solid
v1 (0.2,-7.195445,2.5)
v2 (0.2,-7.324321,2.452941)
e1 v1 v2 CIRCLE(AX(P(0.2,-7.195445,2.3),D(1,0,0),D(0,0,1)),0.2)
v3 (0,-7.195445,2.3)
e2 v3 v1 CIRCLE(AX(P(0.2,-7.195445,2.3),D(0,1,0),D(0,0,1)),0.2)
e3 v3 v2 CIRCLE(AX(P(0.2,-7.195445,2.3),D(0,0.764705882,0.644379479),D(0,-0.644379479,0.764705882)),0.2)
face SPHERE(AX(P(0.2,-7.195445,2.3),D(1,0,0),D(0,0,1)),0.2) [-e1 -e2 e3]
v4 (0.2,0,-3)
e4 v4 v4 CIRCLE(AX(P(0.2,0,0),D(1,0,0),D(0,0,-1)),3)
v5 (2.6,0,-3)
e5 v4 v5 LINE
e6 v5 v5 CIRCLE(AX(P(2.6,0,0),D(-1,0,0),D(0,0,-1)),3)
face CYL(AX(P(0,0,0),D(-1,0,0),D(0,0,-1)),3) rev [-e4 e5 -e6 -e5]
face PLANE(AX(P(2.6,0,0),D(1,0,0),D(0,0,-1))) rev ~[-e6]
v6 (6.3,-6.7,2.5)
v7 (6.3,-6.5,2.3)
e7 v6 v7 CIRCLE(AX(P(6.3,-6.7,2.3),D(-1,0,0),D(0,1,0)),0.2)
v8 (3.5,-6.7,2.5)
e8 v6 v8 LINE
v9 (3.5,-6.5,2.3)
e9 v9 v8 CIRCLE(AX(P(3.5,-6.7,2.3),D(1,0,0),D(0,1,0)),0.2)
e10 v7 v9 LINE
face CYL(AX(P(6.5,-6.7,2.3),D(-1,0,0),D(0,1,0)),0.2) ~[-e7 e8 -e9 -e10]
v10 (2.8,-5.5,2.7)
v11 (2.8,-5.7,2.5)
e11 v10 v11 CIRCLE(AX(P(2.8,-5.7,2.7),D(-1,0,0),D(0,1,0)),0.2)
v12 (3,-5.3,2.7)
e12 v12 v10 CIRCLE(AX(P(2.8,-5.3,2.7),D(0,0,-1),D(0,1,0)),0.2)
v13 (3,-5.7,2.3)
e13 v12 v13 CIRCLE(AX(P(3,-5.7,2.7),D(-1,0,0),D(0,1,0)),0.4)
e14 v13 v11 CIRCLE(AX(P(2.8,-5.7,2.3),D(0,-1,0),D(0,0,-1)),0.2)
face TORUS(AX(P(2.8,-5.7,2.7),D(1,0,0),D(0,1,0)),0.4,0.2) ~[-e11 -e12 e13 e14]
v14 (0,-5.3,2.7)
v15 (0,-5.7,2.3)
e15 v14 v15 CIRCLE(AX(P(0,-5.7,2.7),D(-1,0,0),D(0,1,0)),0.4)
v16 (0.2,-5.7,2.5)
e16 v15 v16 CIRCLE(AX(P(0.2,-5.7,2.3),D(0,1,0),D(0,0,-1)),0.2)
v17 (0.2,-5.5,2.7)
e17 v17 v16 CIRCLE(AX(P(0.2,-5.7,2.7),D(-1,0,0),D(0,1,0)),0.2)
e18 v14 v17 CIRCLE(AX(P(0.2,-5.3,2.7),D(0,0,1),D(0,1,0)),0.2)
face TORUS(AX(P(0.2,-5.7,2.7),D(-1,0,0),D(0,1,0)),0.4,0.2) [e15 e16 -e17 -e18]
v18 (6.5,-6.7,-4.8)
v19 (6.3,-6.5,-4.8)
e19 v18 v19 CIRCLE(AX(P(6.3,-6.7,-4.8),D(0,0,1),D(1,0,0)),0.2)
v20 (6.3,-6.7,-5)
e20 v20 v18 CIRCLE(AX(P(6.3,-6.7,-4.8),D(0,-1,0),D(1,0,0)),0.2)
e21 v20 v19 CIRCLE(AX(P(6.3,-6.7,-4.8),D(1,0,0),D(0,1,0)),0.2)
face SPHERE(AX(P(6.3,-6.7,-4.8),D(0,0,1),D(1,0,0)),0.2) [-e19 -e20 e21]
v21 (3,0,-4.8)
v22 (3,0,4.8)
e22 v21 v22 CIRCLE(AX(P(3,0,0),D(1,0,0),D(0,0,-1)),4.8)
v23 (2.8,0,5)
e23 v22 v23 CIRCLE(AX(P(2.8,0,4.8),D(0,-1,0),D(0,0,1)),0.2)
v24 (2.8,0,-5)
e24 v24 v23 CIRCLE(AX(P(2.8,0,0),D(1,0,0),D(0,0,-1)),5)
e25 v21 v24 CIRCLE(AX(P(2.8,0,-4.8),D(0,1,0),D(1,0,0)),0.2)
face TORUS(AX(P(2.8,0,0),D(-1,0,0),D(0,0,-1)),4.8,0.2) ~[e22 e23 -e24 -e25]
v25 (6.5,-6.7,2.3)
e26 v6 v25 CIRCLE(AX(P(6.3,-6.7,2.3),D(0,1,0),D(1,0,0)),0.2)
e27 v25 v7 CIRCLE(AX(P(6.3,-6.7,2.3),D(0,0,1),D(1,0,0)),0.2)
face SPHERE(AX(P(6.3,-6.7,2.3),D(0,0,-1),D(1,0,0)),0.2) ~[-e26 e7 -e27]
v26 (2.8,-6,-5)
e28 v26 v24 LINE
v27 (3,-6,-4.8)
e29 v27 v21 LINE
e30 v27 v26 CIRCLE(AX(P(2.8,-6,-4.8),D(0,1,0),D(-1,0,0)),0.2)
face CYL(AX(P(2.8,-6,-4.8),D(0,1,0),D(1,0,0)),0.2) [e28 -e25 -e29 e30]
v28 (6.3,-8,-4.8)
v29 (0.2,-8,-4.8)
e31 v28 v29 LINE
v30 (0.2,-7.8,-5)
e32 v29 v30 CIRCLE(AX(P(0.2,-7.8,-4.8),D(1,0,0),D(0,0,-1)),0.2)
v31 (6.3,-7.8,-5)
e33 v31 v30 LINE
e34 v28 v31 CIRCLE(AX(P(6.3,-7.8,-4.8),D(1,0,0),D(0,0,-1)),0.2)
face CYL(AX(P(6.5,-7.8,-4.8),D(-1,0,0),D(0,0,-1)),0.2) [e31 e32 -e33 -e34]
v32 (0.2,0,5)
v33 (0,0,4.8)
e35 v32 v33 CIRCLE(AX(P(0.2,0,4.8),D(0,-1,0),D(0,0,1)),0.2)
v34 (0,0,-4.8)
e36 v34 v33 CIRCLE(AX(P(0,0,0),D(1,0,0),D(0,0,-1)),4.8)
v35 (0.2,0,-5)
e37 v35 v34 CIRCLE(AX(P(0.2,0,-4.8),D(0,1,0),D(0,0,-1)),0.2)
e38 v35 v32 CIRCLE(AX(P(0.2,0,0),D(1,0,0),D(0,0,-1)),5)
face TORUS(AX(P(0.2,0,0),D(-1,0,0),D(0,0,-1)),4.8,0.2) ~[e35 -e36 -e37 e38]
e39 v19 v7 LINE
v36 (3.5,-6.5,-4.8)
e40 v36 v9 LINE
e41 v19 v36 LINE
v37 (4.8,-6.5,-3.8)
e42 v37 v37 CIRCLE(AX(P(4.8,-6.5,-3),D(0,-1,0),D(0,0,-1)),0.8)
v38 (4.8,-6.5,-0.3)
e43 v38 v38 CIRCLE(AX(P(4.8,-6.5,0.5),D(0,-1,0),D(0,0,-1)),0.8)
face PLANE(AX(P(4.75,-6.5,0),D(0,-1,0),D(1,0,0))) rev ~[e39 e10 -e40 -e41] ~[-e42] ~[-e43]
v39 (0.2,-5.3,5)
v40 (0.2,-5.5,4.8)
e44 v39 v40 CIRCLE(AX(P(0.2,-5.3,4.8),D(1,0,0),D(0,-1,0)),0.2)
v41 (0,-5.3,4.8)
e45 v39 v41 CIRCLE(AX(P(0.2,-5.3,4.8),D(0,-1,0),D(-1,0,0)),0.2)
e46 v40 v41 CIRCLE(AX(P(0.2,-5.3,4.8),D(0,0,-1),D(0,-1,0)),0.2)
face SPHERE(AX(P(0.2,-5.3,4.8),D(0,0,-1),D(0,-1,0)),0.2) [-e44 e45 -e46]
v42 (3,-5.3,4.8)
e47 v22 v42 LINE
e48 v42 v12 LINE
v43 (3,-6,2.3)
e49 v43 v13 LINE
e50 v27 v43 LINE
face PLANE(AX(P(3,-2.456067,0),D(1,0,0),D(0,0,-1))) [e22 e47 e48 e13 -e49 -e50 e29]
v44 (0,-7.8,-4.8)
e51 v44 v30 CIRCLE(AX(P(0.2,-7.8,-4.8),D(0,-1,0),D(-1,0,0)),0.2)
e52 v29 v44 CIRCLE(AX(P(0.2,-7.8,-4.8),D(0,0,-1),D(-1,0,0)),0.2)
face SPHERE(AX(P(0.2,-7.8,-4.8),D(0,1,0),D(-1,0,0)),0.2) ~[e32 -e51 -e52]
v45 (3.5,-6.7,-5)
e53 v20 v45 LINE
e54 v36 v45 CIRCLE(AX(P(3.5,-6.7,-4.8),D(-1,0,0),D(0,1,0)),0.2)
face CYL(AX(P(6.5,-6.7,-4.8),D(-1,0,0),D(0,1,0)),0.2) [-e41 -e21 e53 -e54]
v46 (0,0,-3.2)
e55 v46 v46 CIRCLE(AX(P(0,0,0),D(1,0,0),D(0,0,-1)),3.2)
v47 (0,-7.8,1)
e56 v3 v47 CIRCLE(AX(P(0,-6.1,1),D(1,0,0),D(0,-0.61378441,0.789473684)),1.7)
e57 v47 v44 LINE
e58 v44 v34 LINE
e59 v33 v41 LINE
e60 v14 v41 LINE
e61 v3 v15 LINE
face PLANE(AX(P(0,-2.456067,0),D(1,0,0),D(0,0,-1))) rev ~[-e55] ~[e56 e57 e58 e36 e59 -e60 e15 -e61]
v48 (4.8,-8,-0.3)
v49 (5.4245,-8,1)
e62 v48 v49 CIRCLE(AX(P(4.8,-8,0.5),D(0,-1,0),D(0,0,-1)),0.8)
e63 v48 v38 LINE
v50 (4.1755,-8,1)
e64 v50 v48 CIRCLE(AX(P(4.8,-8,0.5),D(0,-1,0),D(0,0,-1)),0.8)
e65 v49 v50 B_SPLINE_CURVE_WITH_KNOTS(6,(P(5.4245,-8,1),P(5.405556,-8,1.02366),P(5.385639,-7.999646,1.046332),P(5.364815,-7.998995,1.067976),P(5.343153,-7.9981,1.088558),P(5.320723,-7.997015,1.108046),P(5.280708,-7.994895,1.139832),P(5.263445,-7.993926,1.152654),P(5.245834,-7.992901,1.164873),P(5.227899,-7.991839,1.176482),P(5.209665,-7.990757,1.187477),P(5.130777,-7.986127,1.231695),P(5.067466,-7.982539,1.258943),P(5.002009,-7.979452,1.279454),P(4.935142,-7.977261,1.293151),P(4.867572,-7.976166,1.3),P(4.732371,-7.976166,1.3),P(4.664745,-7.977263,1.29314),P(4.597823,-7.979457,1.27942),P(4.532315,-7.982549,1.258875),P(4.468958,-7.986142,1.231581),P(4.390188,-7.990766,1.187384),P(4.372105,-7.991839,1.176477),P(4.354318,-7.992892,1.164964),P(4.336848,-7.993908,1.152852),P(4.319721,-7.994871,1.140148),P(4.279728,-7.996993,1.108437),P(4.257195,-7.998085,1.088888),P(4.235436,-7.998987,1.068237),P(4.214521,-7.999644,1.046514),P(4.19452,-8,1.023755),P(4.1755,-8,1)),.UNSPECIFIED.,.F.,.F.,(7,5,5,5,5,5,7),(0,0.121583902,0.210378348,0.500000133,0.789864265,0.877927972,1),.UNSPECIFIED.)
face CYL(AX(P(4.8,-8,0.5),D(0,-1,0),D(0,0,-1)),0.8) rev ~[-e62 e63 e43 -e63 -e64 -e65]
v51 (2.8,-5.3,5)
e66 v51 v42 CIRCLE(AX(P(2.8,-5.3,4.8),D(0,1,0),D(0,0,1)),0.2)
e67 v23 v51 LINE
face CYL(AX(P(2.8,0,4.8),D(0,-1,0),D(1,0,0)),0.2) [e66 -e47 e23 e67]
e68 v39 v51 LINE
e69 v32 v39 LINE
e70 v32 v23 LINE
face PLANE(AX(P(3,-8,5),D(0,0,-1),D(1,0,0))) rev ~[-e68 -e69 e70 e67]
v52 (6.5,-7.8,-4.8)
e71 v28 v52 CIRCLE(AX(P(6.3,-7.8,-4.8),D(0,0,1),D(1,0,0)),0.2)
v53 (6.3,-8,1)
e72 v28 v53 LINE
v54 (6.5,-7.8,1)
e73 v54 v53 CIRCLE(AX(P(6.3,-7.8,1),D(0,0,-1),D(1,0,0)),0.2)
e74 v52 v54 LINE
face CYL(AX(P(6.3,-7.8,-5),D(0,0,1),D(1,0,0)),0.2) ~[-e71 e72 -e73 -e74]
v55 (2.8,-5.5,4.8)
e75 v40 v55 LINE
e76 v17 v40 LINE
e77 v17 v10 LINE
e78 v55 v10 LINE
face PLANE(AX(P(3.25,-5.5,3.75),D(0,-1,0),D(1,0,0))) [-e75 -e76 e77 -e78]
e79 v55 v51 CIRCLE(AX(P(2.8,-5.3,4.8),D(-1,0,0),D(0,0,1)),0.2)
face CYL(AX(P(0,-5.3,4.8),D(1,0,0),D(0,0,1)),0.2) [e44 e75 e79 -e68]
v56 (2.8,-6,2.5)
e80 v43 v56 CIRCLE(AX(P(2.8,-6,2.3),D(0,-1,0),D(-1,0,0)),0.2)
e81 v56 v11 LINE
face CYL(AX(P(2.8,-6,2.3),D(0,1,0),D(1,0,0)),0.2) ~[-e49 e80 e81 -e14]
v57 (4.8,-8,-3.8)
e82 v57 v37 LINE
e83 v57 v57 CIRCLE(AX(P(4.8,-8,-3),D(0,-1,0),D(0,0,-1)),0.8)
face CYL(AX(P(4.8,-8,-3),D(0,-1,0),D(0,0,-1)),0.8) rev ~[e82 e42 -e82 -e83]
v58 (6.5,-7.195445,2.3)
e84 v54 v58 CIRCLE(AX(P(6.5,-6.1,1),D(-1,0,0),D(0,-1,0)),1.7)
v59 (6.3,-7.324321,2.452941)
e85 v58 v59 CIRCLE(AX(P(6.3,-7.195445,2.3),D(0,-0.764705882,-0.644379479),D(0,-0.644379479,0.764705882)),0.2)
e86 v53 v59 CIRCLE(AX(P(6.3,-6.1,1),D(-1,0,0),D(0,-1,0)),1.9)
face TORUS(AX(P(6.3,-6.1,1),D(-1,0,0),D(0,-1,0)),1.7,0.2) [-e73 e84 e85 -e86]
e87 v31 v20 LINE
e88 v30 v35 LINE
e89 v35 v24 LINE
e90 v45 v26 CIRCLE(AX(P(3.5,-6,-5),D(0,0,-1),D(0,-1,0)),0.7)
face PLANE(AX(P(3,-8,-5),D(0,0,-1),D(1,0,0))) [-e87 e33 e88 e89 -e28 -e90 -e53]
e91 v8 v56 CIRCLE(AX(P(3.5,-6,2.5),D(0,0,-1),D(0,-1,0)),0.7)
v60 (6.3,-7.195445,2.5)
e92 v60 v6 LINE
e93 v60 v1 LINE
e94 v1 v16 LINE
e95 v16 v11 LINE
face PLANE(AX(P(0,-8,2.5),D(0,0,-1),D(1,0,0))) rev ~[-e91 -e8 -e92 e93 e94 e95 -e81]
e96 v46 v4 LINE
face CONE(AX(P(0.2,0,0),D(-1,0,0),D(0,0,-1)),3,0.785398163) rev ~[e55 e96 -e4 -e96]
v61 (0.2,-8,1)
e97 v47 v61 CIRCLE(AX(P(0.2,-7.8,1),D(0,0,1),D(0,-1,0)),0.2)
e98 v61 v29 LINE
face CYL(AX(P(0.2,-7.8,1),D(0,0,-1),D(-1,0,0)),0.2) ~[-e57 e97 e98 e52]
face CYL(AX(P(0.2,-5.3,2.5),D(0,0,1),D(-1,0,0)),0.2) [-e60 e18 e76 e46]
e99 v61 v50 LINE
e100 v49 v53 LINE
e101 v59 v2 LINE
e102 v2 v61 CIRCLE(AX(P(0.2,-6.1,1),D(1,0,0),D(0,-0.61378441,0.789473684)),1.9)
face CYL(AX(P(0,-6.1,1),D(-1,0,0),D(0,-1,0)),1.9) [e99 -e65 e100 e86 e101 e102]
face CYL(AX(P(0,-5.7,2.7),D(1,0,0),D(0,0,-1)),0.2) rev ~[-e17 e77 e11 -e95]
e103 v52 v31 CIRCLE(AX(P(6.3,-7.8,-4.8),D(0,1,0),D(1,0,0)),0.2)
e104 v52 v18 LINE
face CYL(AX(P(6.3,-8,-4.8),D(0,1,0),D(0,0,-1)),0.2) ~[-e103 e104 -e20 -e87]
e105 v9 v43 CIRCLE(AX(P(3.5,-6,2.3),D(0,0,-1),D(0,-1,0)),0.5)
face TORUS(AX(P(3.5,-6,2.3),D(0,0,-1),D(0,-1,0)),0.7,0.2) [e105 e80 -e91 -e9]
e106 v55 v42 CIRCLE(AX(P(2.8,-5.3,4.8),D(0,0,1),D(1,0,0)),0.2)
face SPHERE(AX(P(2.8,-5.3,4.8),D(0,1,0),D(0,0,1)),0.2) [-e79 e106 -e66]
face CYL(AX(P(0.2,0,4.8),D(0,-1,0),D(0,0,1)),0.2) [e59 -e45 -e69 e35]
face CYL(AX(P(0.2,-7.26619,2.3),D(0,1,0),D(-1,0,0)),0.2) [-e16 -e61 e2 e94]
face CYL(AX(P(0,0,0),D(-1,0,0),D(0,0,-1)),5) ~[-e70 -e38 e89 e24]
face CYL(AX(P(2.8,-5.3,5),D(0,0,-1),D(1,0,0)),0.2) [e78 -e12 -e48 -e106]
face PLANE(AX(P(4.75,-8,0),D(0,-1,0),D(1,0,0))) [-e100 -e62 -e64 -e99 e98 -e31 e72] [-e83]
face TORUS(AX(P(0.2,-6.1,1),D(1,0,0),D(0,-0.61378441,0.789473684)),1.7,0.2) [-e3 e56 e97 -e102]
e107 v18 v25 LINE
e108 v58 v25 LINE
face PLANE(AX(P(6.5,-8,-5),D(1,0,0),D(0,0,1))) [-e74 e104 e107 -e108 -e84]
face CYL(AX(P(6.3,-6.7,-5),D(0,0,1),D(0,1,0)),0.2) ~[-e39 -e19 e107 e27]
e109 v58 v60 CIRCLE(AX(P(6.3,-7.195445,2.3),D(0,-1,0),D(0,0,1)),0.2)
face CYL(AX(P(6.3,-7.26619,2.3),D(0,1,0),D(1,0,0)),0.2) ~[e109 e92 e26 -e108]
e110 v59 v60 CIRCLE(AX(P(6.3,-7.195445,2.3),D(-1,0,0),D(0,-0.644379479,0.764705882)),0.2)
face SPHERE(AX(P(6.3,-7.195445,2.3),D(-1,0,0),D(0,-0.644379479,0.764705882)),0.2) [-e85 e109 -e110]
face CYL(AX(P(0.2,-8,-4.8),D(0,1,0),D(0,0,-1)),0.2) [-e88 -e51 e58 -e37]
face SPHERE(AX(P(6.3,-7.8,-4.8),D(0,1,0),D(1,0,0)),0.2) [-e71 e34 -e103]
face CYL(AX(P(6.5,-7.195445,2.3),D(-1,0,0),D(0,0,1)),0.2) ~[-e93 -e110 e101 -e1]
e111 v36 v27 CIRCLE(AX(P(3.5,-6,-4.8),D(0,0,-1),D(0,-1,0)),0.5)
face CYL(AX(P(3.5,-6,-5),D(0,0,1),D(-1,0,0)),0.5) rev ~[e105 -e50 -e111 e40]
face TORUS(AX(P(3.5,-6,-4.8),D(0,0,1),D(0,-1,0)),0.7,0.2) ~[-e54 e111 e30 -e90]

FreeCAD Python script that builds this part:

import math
import FreeCAD as App
import Part
import Sketcher
from FreeCAD import Vector
Q = App.Units.Quantity


def edges_at(feature, points):
    """Names of the edges that pass closest to the given points."""
    edges = feature.Shape.Edges
    near = lambda p: min(range(len(edges)), key=lambda i: edges[i].distToShape(Part.Vertex(*p))[0])
    return sorted({f"Edge{near(p) + 1}" for p in points})


def add_polygon(sketch, points):
    """Adds a closed chain of lines whose ends are joined by coincident constraints."""
    first, n = sketch.GeometryCount, len(points)
    for a, b in zip(points, points[1:] + points[:1]):
        sketch.addGeometry(Part.LineSegment(App.Vector(*a, 0), App.Vector(*b, 0)), False)
    for i in range(n):
        sketch.addConstraint(Sketcher.Constraint("Coincident", first + i, 2, first + (i + 1) % n, 1))

doc = App.newDocument("Part")
params = doc.addObject("Spreadsheet::Sheet", "Params")
for row, (alias, value) in enumerate([
    ("sketch1_diameter", "6 mm"),
    ("sketch1_radius", "5 mm"),
    ("sketch1_width", "8 mm"),
    ("pad1_length", "3 mm"),
    ("sketch2_diameter", "1.6 mm"),
    ("sketch2_height", "10 mm"),
    ("sketch2_width", "3.5 mm"),
    ("pad2_length", "1.5 mm"),
    ("sketch3_width", "6.5 mm"),
    ("sketch3_height", "2.5 mm"),
    ("pocket1_length", "2.5 mm"),
    ("sketch4_radius", "1.9 mm"),
    ("pocket2_length", "6.5 mm"),
    ("fillet_radius", "0.5 mm"),
    ("fillet2_radius", "0.2 mm"),
    ("chamfer_size", "0.2 mm"),
    ("pad3_length", "0.4 mm"),
], start=1):
    params.set(f"A{row}", alias)
    params.set(f"B{row}", "=" + value)
    params.setAlias(f"B{row}", alias)

body = doc.addObject("PartDesign::Body", "Body")

sketch1 = body.newObject("Sketcher::SketchObject", "Sketch")
sketch1.AttachmentSupport = (doc.getObject("YZ_Plane"), [""])
sketch1.MapMode = "FlatFace"
sketch1.addGeometry([
    Part.LineSegment(Vector(0, 5, 0), Vector(-8, 5, 0)),
    Part.LineSegment(Vector(-8, 5, 0), Vector(-8, -5, 0)),
    Part.LineSegment(Vector(-8, -5, 0), Vector(0, -5, 0)),
    Part.ArcOfCircle(Part.Circle(Vector(0, 0, 0), Vector(0, 0, 1), 5), math.radians(-90), math.radians(90)),
    Part.Circle(Vector(0, 0, 0), Vector(0, 0, 1), 3),
], False)
sketch1.addConstraint([
    Sketcher.Constraint("Coincident", 0, 2, 1, 1),
    Sketcher.Constraint("Coincident", 1, 2, 2, 1),
    Sketcher.Constraint("Tangent", 2, 2, 3, 1),
    Sketcher.Constraint("Tangent", 3, 2, 0, 1),
    Sketcher.Constraint("Horizontal", 0),
    Sketcher.Constraint("Vertical", 1),
    Sketcher.Constraint("Horizontal", 2),
    Sketcher.Constraint("Coincident", 3, 3, -1, 1),
    Sketcher.Constraint("Coincident", 4, 3, -1, 1),
    Sketcher.Constraint("Diameter", 4, Q("6 mm")),
    Sketcher.Constraint("Radius", 3, Q("5 mm")),
    Sketcher.Constraint("DistanceX", 0, 2, 0, 1, Q("8 mm")),
])
sketch1.setExpression("Constraints[9]", "Params.sketch1_diameter")
sketch1.setExpression("Constraints[10]", "Params.sketch1_radius")
sketch1.setExpression("Constraints[11]", "Params.sketch1_width")
pad1 = body.newObject("PartDesign::Pad", "Pad")
pad1.Profile = sketch1
pad1.setExpression("Length", "Params.pad1_length")

sketch2 = body.newObject("Sketcher::SketchObject", "Sketch001")
sketch2.AttachmentSupport = (doc.getObject("XZ_Plane"), [""])
sketch2.MapMode = "FlatFace"
sketch2.AttachmentOffset = App.Placement(Vector(0, 0, 8), App.Rotation())
add_polygon(sketch2, [(3, 5), (3, -5), (6.5, -5), (6.5, 5)])
sketch2.addGeometry(Part.Circle(Vector(4.8, -3, 0), Vector(0, 0, 1), 0.8), False)
sketch2.addGeometry(Part.Circle(Vector(4.8, 0.5, 0), Vector(0, 0, 1), 0.8), False)
sketch2.addConstraint([
    Sketcher.Constraint("Vertical", 0),
    Sketcher.Constraint("Horizontal", 1),
    Sketcher.Constraint("Vertical", 2),
    Sketcher.Constraint("Horizontal", 3),
    Sketcher.Constraint("Equal", 4, 5),
    Sketcher.Constraint("Vertical", 4, 3, 5, 3),
    Sketcher.Constraint("Diameter", 4, Q("1.6 mm")),
    Sketcher.Constraint("DistanceY", 0, 2, 0, 1, Q("10 mm")),
    Sketcher.Constraint("DistanceX", 1, 1, 1, 2, Q("3.5 mm")),
    Sketcher.Constraint("DistanceY", 4, 3, -1, 1, Q("3 mm")),
    Sketcher.Constraint("DistanceX", -1, 1, 0, 2, Q("3 mm")),
    Sketcher.Constraint("DistanceY", 0, 2, -1, 1, Q("5 mm")),
    Sketcher.Constraint("DistanceX", -1, 1, 4, 3, Q("4.8 mm")),
    Sketcher.Constraint("DistanceY", -1, 1, 5, 3, Q("0.5 mm")),
])
sketch2.setExpression("Constraints[10]", "Params.sketch2_diameter")
sketch2.setExpression("Constraints[11]", "Params.sketch2_height")
sketch2.setExpression("Constraints[12]", "Params.sketch2_width")
pad2 = body.newObject("PartDesign::Pad", "Pad001")
pad2.Profile = sketch2
pad2.setExpression("Length", "Params.pad2_length")
pad2.Reversed = True

sketch3 = body.newObject("Sketcher::SketchObject", "Sketch002")
sketch3.AttachmentSupport = (doc.getObject("XZ_Plane"), [""])
sketch3.MapMode = "FlatFace"
sketch3.AttachmentOffset = App.Placement(Vector(0, 0, 8), App.Rotation())
add_polygon(sketch3, [(0, 5), (0, 2.5), (6.5, 2.5), (6.5, 5)])
sketch3.addConstraint([
    Sketcher.Constraint("Vertical", 0),
    Sketcher.Constraint("Horizontal", 1),
    Sketcher.Constraint("Vertical", 2),
    Sketcher.Constraint("Horizontal", 3),
    Sketcher.Constraint("PointOnObject", 0, 2, -2),
    Sketcher.Constraint("DistanceX", 1, 1, 1, 2, Q("6.5 mm")),
    Sketcher.Constraint("DistanceY", 0, 2, 0, 1, Q("2.5 mm")),
    Sketcher.Constraint("DistanceY", -1, 1, 2, 2, Q("5 mm")),
])
sketch3.setExpression("Constraints[9]", "Params.sketch3_width")
sketch3.setExpression("Constraints[10]", "Params.sketch3_height")
pocket1 = body.newObject("PartDesign::Pocket", "Pocket")
pocket1.Profile = sketch3
pocket1.setExpression("Length", "Params.pocket1_length")

sketch4 = body.newObject("Sketcher::SketchObject", "Sketch003")
sketch4.AttachmentSupport = (doc.getObject("YZ_Plane"), [""])
sketch4.MapMode = "FlatFace"
sketch4.addGeometry([
    Part.LineSegment(Vector(-6, 3.277054, 0), Vector(-6, 2.897367, 0)),
    Part.ArcOfCircle(Part.Circle(Vector(-6.1, 1, 0), Vector(0, 0, 1), 1.9), math.radians(86.983039), math.radians(180)),
    Part.LineSegment(Vector(-8, 1, 0), Vector(-8.325128, 1, 0)),
    Part.LineSegment(Vector(-8.325128, 1, 0), Vector(-8.325128, 3.277054, 0)),
    Part.LineSegment(Vector(-8.325128, 3.277054, 0), Vector(-6, 3.277054, 0)),
], False)
sketch4.addConstraint([
    Sketcher.Constraint("Coincident", 0, 2, 1, 1),
    Sketcher.Constraint("Coincident", 1, 2, 2, 1),
    Sketcher.Constraint("Coincident", 2, 2, 3, 1),
    Sketcher.Constraint("Coincident", 3, 2, 4, 1),
    Sketcher.Constraint("Coincident", 4, 2, 0, 1),
    Sketcher.Constraint("Vertical", 0),
    Sketcher.Constraint("Horizontal", 2),
    Sketcher.Constraint("Vertical", 3),
    Sketcher.Constraint("Horizontal", 4),
    Sketcher.Constraint("Radius", 1, Q("1.9 mm")),
    Sketcher.Constraint("DistanceY", -1, 1, 1, 3, Q("1 mm")),
    Sketcher.Constraint("DistanceX", 0, 2, -1, 1, Q("6 mm")),
    Sketcher.Constraint("DistanceX", 1, 2, -1, 1, Q("8 mm")),
    Sketcher.Constraint("DistanceY", -1, 1, 1, 2, Q("1 mm")),
    Sketcher.Constraint("DistanceX", 2, 2, 2, 1, Q("0.325128 mm")),
    Sketcher.Constraint("DistanceY", 0, 2, 0, 1, Q("0.379687 mm")),
])
sketch4.setExpression("Constraints[9]", "Params.sketch4_radius")
pocket2 = body.newObject("PartDesign::Pocket", "Pocket001")
pocket2.Profile = sketch4
pocket2.setExpression("Length", "Params.pocket2_length")
pocket2.Reversed = True
doc.recompute()

fillet = body.newObject("PartDesign::Fillet", "Fillet")
fillet.Base = (pocket2, edges_at(pocket2, [(3, -6.5, -1.25)]))
fillet.setExpression("Radius", "Params.fillet_radius")
doc.recompute()

fillet2 = body.newObject("PartDesign::Fillet", "Fillet001")
fillet2.Base = (fillet, edges_at(fillet, [
    (6.5, -6.5, -1.25),
    (6.5, -7.25, -5),
    (6.5, -8, -2),
    (3, 5, 0),
    (0, -5.5, 3.75),
    (0, -6.383, 2.5),
    (1.5, -5.5, 5),
    (6.5, -6.883, 2.5),
    (1.5, -5.5, 2.5),
    (3, -5.5, 3.75),
    (0, -4, -5),
    (0, -2.75, 5),
    (0, 5, 0),
    (0, -8, -2),
    (3.25, -7.266, 2.5),
    (6.5, -7.807, 1.835),
    (0, -7.807, 1.835),
    (3, -5.75, 2.5),
    (3, -3, -5),
    (5, -6.5, 2.5),
    (3, -2.75, 5),
    (5, -6.5, -5),
    (3.146, -6.354, -5),
    (3.146, -6.354, 2.5),
    (3.25, -8, -5),
]))
fillet2.setExpression("Radius", "Params.fillet2_radius")
doc.recompute()

chamfer = body.newObject("PartDesign::Chamfer", "Chamfer")
chamfer.Base = (fillet2, edges_at(fillet2, [(0, 0, 3), (3, 0, 3)]))
chamfer.setExpression("Size", "Params.chamfer_size")

sketch5 = body.newObject("Sketcher::SketchObject", "Sketch004")
sketch5.AttachmentSupport = (doc.getObject("YZ_Plane"), [""])
sketch5.MapMode = "FlatFace"
sketch5.AttachmentOffset = App.Placement(Vector(0, 0, 3), App.Rotation())
sketch5.addGeometry(Part.Circle(Vector(0, 0, 0), Vector(0, 0, 1), 3.977941), False)
sketch5.addConstraint([
    Sketcher.Constraint("Coincident", 0, 3, -1, 1),
    Sketcher.Constraint("Diameter", 0, Q("7.955882 mm")),
])
pad3 = body.newObject("PartDesign::Pad", "Pad002")
pad3.Profile = sketch5
pad3.setExpression("Length", "Params.pad3_length")
pad3.Reversed = True

doc.recompute()
